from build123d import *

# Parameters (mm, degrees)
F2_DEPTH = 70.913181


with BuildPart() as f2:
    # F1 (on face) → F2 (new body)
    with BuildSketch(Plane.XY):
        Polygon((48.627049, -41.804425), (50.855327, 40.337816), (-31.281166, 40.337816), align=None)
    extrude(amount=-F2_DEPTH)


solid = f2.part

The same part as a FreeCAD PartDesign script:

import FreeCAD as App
import Part
import Sketcher

V = App.Vector
Q = App.Units.Quantity


def add_polygon(sketch, points):
    """Adds a closed chain of lines whose ends are joined by coincident constraints."""
    first, n = sketch.GeometryCount, len(points)
    for a, b in zip(points, points[1:] + points[:1]):
        sketch.addGeometry(Part.LineSegment(App.Vector(*a, 0), App.Vector(*b, 0)), False)
    for i in range(n):
        sketch.addConstraint(Sketcher.Constraint("Coincident", first + i, 2, first + (i + 1) % n, 1))

doc = App.newDocument("Part")
params = doc.addObject("Spreadsheet::Sheet", "Params")
for row, (alias, value) in enumerate([
    ("pad1_length", "70.913181 mm"),
], start=1):
    params.set(f"A{row}", alias)
    params.set(f"B{row}", "=" + value)
    params.setAlias(f"B{row}", alias)

body = doc.addObject("PartDesign::Body", "Body")

sketch1 = body.newObject("Sketcher::SketchObject", "Sketch")
sketch1.AttachmentSupport = (doc.getObject("XY_Plane"), [""])
sketch1.MapMode = "FlatFace"
add_polygon(sketch1, [(49, -42), (51, 40), (-31, 40)])
sketch1.addConstraint(Sketcher.Constraint("Horizontal", 1))
sketch1.addConstraint(Sketcher.Constraint("Distance", 0, Q("82.172459 mm")))
sketch1.addConstraint(Sketcher.Constraint("DistanceX", 1, 2, 1, 1, Q("82.136493 mm")))
sketch1.addConstraint(Sketcher.Constraint("DistanceX", -1, 1, 2, 2, Q("48.627049 mm")))
sketch1.addConstraint(Sketcher.Constraint("DistanceX", 2, 2, 0, 2, Q("2.228278 mm")))
sketch1.addConstraint(Sketcher.Constraint("DistanceY", -1, 1, 0, 2, Q("40.337816 mm")))
pad1 = body.newObject("PartDesign::Pad", "Pad")
pad1.Profile = sketch1
pad1.setExpression("Length", "Params.pad1_length")
pad1.Reversed = True

doc.recompute()
